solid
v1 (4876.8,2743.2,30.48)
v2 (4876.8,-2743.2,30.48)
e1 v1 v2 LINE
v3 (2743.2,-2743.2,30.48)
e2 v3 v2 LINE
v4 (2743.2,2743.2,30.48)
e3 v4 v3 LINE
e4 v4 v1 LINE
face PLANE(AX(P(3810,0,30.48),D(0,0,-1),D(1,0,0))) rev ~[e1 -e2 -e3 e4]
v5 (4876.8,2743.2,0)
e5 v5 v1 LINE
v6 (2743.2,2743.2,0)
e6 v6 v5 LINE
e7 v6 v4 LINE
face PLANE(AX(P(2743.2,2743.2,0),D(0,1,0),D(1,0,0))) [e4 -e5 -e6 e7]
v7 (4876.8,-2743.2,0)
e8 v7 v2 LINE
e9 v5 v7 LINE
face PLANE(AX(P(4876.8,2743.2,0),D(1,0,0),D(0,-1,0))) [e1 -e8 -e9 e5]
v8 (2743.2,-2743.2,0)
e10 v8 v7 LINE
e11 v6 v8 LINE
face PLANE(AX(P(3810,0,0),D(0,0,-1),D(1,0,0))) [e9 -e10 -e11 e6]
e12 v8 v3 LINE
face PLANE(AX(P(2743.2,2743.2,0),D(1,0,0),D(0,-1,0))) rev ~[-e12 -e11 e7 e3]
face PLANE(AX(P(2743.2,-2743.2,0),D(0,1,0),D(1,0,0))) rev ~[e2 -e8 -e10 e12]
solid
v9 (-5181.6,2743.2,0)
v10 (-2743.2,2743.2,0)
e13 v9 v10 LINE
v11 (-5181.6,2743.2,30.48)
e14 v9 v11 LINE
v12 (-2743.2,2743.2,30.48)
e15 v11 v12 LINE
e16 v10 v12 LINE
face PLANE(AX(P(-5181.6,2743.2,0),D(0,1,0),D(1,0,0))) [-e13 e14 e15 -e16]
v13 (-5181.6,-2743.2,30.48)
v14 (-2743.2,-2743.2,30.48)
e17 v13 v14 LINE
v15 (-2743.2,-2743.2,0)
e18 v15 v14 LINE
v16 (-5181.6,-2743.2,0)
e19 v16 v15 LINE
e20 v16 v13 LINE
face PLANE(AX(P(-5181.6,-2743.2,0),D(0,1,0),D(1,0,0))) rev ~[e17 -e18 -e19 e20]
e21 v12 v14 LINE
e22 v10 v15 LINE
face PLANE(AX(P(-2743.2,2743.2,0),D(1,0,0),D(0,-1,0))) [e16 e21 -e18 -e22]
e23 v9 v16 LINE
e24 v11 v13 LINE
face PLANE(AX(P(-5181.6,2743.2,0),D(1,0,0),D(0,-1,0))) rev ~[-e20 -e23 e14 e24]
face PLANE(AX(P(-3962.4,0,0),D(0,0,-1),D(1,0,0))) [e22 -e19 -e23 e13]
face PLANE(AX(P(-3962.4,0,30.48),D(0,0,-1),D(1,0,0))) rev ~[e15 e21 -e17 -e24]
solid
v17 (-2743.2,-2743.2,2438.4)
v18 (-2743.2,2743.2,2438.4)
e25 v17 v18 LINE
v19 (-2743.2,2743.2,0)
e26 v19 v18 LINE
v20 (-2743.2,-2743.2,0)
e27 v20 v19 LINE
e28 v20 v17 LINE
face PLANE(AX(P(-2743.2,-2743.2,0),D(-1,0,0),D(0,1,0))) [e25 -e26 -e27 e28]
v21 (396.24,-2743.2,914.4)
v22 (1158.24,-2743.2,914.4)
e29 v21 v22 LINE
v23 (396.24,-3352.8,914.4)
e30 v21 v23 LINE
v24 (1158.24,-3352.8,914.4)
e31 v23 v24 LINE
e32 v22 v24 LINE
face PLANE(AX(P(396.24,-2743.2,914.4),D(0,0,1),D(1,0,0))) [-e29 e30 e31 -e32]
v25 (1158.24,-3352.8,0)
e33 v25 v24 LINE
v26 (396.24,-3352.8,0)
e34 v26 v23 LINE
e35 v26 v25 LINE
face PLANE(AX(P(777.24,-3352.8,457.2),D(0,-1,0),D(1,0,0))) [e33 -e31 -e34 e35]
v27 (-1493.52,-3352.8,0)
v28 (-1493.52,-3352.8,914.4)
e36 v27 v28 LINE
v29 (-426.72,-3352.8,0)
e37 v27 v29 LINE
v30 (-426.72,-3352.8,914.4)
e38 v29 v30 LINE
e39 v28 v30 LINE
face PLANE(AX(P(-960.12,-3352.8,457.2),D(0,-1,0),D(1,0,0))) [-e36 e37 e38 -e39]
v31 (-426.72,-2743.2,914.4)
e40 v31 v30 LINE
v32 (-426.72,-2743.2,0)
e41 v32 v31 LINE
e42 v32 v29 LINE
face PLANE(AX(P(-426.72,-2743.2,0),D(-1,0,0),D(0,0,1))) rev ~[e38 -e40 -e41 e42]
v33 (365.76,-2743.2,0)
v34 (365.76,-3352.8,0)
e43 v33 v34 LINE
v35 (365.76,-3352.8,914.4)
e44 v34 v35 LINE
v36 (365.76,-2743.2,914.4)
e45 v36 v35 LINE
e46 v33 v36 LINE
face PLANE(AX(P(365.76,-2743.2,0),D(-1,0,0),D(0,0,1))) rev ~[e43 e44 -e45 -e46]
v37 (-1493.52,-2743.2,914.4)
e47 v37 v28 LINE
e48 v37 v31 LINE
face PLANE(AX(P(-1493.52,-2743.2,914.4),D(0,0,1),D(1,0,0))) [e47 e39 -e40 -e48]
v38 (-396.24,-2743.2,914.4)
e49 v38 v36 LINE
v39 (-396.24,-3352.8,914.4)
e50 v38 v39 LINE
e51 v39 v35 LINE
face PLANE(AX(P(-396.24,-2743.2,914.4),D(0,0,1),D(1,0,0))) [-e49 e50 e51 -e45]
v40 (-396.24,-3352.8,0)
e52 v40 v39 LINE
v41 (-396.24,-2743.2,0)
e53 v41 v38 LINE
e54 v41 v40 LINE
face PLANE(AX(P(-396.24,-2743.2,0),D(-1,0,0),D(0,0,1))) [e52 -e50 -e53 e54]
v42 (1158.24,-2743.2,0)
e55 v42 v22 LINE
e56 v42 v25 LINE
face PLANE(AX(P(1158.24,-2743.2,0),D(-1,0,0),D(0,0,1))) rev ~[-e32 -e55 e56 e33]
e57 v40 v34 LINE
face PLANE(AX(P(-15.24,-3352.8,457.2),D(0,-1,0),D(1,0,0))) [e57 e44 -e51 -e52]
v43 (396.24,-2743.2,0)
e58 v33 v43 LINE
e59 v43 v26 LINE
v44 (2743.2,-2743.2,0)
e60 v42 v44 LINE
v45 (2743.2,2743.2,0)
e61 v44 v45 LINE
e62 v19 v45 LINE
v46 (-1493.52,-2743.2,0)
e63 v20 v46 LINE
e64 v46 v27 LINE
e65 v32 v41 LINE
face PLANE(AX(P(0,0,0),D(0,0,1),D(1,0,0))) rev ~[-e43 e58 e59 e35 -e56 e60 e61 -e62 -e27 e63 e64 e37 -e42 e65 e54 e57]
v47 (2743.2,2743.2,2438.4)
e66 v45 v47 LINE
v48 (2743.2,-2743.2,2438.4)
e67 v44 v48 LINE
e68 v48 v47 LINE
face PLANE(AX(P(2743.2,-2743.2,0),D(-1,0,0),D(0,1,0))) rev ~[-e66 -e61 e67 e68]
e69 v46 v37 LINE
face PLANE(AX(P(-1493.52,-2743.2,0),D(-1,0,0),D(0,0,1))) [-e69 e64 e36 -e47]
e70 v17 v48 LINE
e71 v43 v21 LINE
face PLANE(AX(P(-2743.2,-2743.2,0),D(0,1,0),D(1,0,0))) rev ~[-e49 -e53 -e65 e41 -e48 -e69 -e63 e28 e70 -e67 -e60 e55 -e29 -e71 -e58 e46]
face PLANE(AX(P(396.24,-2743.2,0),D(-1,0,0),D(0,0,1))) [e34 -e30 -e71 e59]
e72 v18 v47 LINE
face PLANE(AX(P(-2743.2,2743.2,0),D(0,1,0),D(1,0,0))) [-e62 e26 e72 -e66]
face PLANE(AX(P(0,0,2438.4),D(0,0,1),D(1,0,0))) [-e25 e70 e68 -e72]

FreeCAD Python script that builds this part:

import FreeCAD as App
import Part
import Sketcher
from FreeCAD import Vector
Q = App.Units.Quantity

doc = App.newDocument("Part")
body = doc.addObject("PartDesign::Body", "Body")

sketch1 = doc.addObject("Sketcher::SketchObject", "Sketch")
body.addObject(sketch1)
sketch1.AttachmentSupport = (doc.XY_Plane, [""])
sketch1.MapMode = "FlatFace"
sketch1.addGeometry(Part.LineSegment(Vector(-2743, 2743, 0), Vector(-2743, -2743, 0)), False)
sketch1.addGeometry(Part.LineSegment(Vector(-2743, -2743, 0), Vector(2743, -2743, 0)), False)
sketch1.addGeometry(Part.LineSegment(Vector(2743, -2743, 0), Vector(2743, 2743, 0)), False)
sketch1.addGeometry(Part.LineSegment(Vector(2743, 2743, 0), Vector(-2743, 2743, 0)), False)
sketch1.addConstraint(Sketcher.Constraint("Coincident", 0, 2, 1, 1))
sketch1.addConstraint(Sketcher.Constraint("Coincident", 1, 2, 2, 1))
sketch1.addConstraint(Sketcher.Constraint("Coincident", 2, 2, 3, 1))
sketch1.addConstraint(Sketcher.Constraint("Coincident", 3, 2, 0, 1))
sketch1.addConstraint(Sketcher.Constraint("Vertical", 0))
sketch1.addConstraint(Sketcher.Constraint("Horizontal", 1))
sketch1.addConstraint(Sketcher.Constraint("Vertical", 2))
sketch1.addConstraint(Sketcher.Constraint("Horizontal", 3))
sketch1.addConstraint(Sketcher.Constraint("Symmetric", 0, 2, 2, 2, -1, 1))
sketch1.addConstraint(Sketcher.Constraint("Equal", 3, 0))
sketch1.addConstraint(Sketcher.Constraint("DistanceX", 1, 1, 1, 2, Q("216 in")))
pad1 = doc.addObject("PartDesign::Pad", "Pad")
body.addObject(pad1)
pad1.Profile = sketch1
pad1.Length = Q("96 in")

sketch2 = doc.addObject("Sketcher::SketchObject", "Sketch001")
body.addObject(sketch2)
sketch2.AttachmentSupport = (doc.XZ_Plane, [""])
sketch2.MapMode = "FlatFace"
sketch2.AttachmentOffset = App.Placement(Vector(0, 0, 108 * 25.4), App.Rotation())
sketch2.addGeometry(Part.LineSegment(Vector(-1494, 914, 0), Vector(-1494, 0, 0)), False)
sketch2.addGeometry(Part.LineSegment(Vector(-1494, 0, 0), Vector(-427, 0, 0)), False)
sketch2.addGeometry(Part.LineSegment(Vector(-427, 0, 0), Vector(-427, 914, 0)), False)
sketch2.addGeometry(Part.LineSegment(Vector(-427, 914, 0), Vector(-1494, 914, 0)), False)
sketch2.addGeometry(Part.LineSegment(Vector(-396, 914, 0), Vector(-396, 0, 0)), False)
sketch2.addGeometry(Part.LineSegment(Vector(-396, 0, 0), Vector(366, 0, 0)), False)
sketch2.addGeometry(Part.LineSegment(Vector(366, 0, 0), Vector(366, 914, 0)), False)
sketch2.addGeometry(Part.LineSegment(Vector(366, 914, 0), Vector(-396, 914, 0)), False)
sketch2.addGeometry(Part.LineSegment(Vector(396, 914, 0), Vector(396, 0, 0)), False)
sketch2.addGeometry(Part.LineSegment(Vector(396, 0, 0), Vector(1158, 0, 0)), False)
sketch2.addGeometry(Part.LineSegment(Vector(1158, 0, 0), Vector(1158, 914, 0)), False)
sketch2.addGeometry(Part.LineSegment(Vector(1158, 914, 0), Vector(396, 914, 0)), False)
sketch2.addConstraint(Sketcher.Constraint("Coincident", 0, 2, 1, 1))
sketch2.addConstraint(Sketcher.Constraint("Coincident", 1, 2, 2, 1))
sketch2.addConstraint(Sketcher.Constraint("Coincident", 2, 2, 3, 1))
sketch2.addConstraint(Sketcher.Constraint("Coincident", 3, 2, 0, 1))
sketch2.addConstraint(Sketcher.Constraint("Coincident", 4, 2, 5, 1))
sketch2.addConstraint(Sketcher.Constraint("Coincident", 5, 2, 6, 1))
sketch2.addConstraint(Sketcher.Constraint("Coincident", 6, 2, 7, 1))
sketch2.addConstraint(Sketcher.Constraint("Coincident", 7, 2, 4, 1))
sketch2.addConstraint(Sketcher.Constraint("Coincident", 8, 2, 9, 1))
sketch2.addConstraint(Sketcher.Constraint("Coincident", 9, 2, 10, 1))
sketch2.addConstraint(Sketcher.Constraint("Coincident", 10, 2, 11, 1))
sketch2.addConstraint(Sketcher.Constraint("Coincident", 11, 2, 8, 1))
sketch2.addConstraint(Sketcher.Constraint("Vertical", 0))
sketch2.addConstraint(Sketcher.Constraint("Horizontal", 1))
sketch2.addConstraint(Sketcher.Constraint("Vertical", 2))
sketch2.addConstraint(Sketcher.Constraint("Horizontal", 3))
sketch2.addConstraint(Sketcher.Constraint("Vertical", 4))
sketch2.addConstraint(Sketcher.Constraint("Horizontal", 5))
sketch2.addConstraint(Sketcher.Constraint("Vertical", 6))
sketch2.addConstraint(Sketcher.Constraint("Horizontal", 7))
sketch2.addConstraint(Sketcher.Constraint("Vertical", 8))
sketch2.addConstraint(Sketcher.Constraint("Horizontal", 9))
sketch2.addConstraint(Sketcher.Constraint("Vertical", 10))
sketch2.addConstraint(Sketcher.Constraint("Horizontal", 11))
sketch2.addConstraint(Sketcher.Constraint("Symmetric", 4, 2, 8, 2, -1, 1))
sketch2.addConstraint(Sketcher.Constraint("PointOnObject", 0, 2, -1))
sketch2.addConstraint(Sketcher.Constraint("PointOnObject", 4, 2, -1))
sketch2.addConstraint(Sketcher.Constraint("Horizontal", 3, 2, 6, 2))
sketch2.addConstraint(Sketcher.Constraint("Horizontal", 7, 2, 10, 2))
sketch2.addConstraint(Sketcher.Constraint("Equal", 7, 9))
sketch2.addConstraint(Sketcher.Constraint("DistanceX", 1, 1, 1, 2, Q("42 in")))
sketch2.addConstraint(Sketcher.Constraint("DistanceX", 5, 1, 5, 2, Q("30 in")))
sketch2.addConstraint(Sketcher.Constraint("DistanceY", 0, 2, 0, 1, Q("36 in")))
sketch2.addConstraint(Sketcher.Constraint("DistanceX", 0, 2, -1, 1, Q("58.8 in")))
sketch2.addConstraint(Sketcher.Constraint("DistanceX", 4, 2, -1, 1, Q("15.6 in")))
pad2 = doc.addObject("PartDesign::Pad", "Pad001")
body.addObject(pad2)
pad2.Profile = sketch2
pad2.Length = Q("24 in")
body2 = doc.addObject("PartDesign::Body", "Body001")
body2.AllowCompound = True

sketch3 = doc.addObject("Sketcher::SketchObject", "Sketch002")
body2.addObject(sketch3)
sketch3.AttachmentSupport = (doc.getObject("XY_Plane001"), [""])
sketch3.MapMode = "FlatFace"
sketch3.addGeometry(Part.LineSegment(Vector(-5182, -2743, 0), Vector(-5182, 2743, 0)), False)
sketch3.addGeometry(Part.LineSegment(Vector(-5182, 2743, 0), Vector(-2743, 2743, 0)), False)
sketch3.addGeometry(Part.LineSegment(Vector(-2743, 2743, 0), Vector(-2743, -2743, 0)), False)
sketch3.addGeometry(Part.LineSegment(Vector(-2743, -2743, 0), Vector(-5182, -2743, 0)), False)
sketch3.addGeometry(Part.LineSegment(Vector(2743, -2743, 0), Vector(2743, 2743, 0)), False)
sketch3.addGeometry(Part.LineSegment(Vector(2743, 2743, 0), Vector(4877, 2743, 0)), False)
sketch3.addGeometry(Part.LineSegment(Vector(4877, 2743, 0), Vector(4877, -2743, 0)), False)
sketch3.addGeometry(Part.LineSegment(Vector(4877, -2743, 0), Vector(2743, -2743, 0)), False)
sketch3.addConstraint(Sketcher.Constraint("Coincident", 0, 2, 1, 1))
sketch3.addConstraint(Sketcher.Constraint("Coincident", 1, 2, 2, 1))
sketch3.addConstraint(Sketcher.Constraint("Coincident", 2, 2, 3, 1))
sketch3.addConstraint(Sketcher.Constraint("Coincident", 3, 2, 0, 1))
sketch3.addConstraint(Sketcher.Constraint("Coincident", 4, 2, 5, 1))
sketch3.addConstraint(Sketcher.Constraint("Coincident", 5, 2, 6, 1))
sketch3.addConstraint(Sketcher.Constraint("Coincident", 6, 2, 7, 1))
sketch3.addConstraint(Sketcher.Constraint("Coincident", 7, 2, 4, 1))
sketch3.addConstraint(Sketcher.Constraint("Vertical", 0))
sketch3.addConstraint(Sketcher.Constraint("Horizontal", 1))
sketch3.addConstraint(Sketcher.Constraint("Vertical", 2))
sketch3.addConstraint(Sketcher.Constraint("Horizontal", 3))
sketch3.addConstraint(Sketcher.Constraint("Vertical", 4))
sketch3.addConstraint(Sketcher.Constraint("Horizontal", 5))
sketch3.addConstraint(Sketcher.Constraint("Vertical", 6))
sketch3.addConstraint(Sketcher.Constraint("Horizontal", 7))
sketch3.addConstraint(Sketcher.Constraint("Symmetric", 2, 2, 4, 2, -1, 1))
sketch3.addConstraint(Sketcher.Constraint("Horizontal", 1, 2, 4, 2))
sketch3.addConstraint(Sketcher.Constraint("Horizontal", 3, 2, 6, 2))
sketch3.addConstraint(Sketcher.Constraint("DistanceX", 1, 1, 1, 2, Q("96 in")))
sketch3.addConstraint(Sketcher.Constraint("DistanceX", 5, 1, 5, 2, Q("84 in")))
sketch3.addConstraint(Sketcher.Constraint("DistanceY", 0, 1, 0, 2, Q("216 in")))
sketch3.addConstraint(Sketcher.Constraint("DistanceX", 0, 2, -1, 1, Q("204 in")))
pad3 = doc.addObject("PartDesign::Pad", "Pad002")
body2.addObject(pad3)
pad3.Profile = sketch3
pad3.Length = Q("1.2 in")

doc.recompute()
